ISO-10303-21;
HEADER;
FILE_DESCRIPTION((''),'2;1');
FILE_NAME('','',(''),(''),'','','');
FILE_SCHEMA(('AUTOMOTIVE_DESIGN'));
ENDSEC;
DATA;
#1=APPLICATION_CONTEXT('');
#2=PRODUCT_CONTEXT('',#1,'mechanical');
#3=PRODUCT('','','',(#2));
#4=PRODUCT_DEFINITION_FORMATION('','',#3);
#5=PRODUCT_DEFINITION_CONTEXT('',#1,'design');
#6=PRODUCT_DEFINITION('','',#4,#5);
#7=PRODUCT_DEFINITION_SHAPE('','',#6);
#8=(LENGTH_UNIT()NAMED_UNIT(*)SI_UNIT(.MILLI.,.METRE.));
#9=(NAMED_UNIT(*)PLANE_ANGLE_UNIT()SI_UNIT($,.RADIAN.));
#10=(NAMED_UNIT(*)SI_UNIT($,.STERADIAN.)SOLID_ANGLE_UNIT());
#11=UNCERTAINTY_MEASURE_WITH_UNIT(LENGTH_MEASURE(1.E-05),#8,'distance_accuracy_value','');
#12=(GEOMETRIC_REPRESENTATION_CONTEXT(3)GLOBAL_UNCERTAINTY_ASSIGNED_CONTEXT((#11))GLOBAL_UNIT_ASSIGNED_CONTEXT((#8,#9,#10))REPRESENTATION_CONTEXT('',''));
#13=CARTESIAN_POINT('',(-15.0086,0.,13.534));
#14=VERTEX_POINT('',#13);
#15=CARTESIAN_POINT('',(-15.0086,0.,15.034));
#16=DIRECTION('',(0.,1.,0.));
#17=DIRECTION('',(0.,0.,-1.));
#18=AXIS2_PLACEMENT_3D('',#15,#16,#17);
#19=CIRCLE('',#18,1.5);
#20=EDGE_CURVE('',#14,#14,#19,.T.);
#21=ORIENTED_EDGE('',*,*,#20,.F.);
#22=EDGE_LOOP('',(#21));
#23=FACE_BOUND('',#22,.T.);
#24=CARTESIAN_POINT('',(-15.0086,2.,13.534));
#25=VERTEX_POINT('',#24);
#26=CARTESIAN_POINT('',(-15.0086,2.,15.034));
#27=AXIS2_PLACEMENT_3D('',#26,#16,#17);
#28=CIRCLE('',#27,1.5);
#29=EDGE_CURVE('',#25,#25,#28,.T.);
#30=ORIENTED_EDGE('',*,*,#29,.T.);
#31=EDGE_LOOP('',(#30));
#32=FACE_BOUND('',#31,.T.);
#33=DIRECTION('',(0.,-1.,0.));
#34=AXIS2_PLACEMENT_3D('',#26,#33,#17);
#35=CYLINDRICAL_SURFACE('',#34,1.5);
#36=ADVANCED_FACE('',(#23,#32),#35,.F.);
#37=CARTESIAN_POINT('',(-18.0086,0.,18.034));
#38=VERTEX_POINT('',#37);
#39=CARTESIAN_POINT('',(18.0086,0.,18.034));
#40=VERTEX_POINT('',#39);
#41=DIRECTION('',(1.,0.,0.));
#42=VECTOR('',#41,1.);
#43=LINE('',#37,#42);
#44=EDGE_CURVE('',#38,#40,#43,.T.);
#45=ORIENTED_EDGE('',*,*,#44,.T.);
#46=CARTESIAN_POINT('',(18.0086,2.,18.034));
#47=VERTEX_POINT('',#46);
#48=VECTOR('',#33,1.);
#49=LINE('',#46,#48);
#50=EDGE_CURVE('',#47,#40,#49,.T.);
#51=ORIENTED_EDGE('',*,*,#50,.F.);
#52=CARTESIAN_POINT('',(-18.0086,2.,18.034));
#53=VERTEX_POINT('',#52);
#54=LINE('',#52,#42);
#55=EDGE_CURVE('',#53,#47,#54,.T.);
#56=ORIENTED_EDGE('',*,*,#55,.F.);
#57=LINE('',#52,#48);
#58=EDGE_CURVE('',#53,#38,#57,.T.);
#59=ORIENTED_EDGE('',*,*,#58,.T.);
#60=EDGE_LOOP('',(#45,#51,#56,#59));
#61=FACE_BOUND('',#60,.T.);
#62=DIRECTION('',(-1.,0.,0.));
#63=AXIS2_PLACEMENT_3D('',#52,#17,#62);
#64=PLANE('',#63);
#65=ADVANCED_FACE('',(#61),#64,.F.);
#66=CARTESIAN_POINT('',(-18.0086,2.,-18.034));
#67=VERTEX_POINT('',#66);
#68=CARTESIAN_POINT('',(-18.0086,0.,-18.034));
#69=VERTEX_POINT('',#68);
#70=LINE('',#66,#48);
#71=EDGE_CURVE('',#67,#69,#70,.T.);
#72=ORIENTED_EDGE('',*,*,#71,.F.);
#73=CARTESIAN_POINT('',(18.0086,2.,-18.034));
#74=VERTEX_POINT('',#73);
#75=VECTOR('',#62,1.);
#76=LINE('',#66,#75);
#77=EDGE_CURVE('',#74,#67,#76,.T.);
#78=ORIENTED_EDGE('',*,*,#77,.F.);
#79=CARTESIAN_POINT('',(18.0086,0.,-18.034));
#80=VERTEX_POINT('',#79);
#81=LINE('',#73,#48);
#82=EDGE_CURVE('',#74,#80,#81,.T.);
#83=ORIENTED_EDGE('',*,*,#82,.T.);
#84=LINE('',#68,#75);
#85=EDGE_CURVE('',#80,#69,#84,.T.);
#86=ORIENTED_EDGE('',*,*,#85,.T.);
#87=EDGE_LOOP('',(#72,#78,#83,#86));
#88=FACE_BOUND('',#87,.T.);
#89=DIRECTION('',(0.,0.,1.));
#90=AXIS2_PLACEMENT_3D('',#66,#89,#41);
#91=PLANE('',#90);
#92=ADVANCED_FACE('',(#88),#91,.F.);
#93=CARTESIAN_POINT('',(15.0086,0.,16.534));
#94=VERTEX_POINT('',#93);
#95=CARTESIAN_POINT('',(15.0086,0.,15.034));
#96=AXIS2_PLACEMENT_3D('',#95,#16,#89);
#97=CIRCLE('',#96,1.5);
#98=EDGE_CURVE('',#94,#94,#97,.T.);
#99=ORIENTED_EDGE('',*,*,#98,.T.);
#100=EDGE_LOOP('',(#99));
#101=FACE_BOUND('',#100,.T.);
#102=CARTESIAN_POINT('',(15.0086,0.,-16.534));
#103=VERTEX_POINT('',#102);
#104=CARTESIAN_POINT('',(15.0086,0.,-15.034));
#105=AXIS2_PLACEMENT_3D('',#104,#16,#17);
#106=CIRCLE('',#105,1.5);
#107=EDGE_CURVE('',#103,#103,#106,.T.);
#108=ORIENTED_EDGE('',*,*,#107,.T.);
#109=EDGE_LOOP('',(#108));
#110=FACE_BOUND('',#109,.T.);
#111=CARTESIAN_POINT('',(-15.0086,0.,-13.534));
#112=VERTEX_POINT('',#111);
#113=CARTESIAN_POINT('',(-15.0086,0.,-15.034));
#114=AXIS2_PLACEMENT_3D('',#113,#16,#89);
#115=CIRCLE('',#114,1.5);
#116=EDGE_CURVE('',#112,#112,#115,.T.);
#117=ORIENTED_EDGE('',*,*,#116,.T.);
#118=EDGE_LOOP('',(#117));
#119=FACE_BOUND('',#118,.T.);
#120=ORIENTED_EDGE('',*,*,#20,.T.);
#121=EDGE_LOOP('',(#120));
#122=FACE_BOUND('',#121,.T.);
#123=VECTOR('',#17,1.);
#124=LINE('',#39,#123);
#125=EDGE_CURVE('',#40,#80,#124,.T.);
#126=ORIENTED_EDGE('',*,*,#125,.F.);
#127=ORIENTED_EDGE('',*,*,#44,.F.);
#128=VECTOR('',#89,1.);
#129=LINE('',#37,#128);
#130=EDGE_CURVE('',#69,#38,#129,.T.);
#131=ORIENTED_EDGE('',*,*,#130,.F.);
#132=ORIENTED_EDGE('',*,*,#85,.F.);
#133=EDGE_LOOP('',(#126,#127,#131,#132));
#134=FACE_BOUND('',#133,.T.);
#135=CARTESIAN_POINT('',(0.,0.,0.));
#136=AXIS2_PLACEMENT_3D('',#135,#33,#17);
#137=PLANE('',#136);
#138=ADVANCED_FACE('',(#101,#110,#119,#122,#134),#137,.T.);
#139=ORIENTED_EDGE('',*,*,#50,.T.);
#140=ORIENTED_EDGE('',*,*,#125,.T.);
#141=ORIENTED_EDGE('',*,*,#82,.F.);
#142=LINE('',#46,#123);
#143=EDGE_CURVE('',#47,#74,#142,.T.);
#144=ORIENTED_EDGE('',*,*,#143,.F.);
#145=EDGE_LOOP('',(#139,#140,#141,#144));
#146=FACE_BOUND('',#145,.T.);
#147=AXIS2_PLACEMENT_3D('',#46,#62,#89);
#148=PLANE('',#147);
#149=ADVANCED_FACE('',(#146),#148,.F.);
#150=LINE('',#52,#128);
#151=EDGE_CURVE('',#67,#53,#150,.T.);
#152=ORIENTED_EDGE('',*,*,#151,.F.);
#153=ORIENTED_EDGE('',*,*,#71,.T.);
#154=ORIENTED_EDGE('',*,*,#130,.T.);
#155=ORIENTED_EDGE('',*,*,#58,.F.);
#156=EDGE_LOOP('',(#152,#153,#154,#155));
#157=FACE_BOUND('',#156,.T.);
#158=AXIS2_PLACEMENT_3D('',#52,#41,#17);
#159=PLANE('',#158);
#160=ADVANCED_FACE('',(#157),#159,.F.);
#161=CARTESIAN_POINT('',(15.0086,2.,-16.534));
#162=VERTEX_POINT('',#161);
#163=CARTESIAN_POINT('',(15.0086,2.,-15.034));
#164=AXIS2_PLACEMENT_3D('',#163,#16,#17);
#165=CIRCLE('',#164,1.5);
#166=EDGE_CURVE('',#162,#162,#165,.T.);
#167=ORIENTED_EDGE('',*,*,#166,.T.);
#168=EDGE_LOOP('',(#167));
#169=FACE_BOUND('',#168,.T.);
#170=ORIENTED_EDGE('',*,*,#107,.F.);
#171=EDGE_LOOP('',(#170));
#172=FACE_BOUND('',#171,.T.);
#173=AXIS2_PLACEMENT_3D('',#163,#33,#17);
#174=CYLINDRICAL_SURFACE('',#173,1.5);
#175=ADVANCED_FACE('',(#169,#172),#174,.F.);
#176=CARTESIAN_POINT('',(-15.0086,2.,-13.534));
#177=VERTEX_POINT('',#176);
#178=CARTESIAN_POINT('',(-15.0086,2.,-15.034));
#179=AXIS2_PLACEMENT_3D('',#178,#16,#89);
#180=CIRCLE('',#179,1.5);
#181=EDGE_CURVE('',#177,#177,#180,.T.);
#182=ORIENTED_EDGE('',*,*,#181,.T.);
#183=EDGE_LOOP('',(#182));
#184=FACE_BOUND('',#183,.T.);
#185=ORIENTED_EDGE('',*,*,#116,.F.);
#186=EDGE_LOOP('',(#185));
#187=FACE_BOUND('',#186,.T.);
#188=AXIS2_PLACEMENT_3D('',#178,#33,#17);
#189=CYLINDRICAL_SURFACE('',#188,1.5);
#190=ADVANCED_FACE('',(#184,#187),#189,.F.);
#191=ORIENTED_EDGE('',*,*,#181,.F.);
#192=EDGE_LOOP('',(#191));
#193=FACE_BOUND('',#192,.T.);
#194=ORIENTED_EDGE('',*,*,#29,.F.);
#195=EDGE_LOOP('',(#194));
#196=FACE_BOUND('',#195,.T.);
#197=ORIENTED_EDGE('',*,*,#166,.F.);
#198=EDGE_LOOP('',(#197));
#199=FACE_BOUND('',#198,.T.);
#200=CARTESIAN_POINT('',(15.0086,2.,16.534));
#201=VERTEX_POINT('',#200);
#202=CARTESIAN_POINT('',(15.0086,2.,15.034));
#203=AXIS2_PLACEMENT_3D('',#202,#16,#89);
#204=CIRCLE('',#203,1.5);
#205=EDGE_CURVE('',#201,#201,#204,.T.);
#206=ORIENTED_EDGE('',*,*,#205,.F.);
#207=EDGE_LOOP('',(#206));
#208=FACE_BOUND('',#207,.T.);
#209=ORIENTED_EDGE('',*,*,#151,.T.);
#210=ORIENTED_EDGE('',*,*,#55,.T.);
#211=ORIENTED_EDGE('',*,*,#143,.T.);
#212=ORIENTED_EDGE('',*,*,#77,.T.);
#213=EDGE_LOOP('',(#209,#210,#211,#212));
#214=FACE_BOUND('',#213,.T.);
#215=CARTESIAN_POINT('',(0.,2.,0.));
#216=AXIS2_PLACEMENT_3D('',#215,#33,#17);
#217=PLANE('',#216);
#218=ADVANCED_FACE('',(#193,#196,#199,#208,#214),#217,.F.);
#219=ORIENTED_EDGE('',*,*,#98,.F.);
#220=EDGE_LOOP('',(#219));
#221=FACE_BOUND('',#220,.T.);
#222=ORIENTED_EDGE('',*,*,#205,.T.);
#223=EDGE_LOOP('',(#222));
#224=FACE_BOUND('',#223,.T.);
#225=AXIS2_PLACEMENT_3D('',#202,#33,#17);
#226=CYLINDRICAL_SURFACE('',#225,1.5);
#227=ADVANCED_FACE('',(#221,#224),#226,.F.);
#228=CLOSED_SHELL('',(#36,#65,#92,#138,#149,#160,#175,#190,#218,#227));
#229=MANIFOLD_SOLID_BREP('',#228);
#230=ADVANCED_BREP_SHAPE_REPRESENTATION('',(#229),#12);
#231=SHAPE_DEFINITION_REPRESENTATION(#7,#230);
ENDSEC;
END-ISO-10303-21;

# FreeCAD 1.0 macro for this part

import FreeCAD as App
import Part
import Sketcher
from FreeCAD import Vector

doc = App.newDocument("Part")
params = doc.addObject("Spreadsheet::Sheet", "Params")
for row, (alias, value) in enumerate([
    ("sketch1_diameter", "3 mm"),
    ("pad1_length", "2 mm"),
], start=1):
    params.set(f"A{row}", alias)
    params.set(f"B{row}", "=" + value)
    params.setAlias(f"B{row}", alias)

body = doc.addObject("PartDesign::Body", "Body")

# Sketch on XZ plane
sketch1 = body.newObject("Sketcher::SketchObject", "Sketch")
sketch1.AttachmentSupport = (doc.getObject("XZ_Plane"), [""])
sketch1.MapMode = "FlatFace"
sketch1.addGeometry([
    Part.LineSegment(Vector(-18.0086, -18.034, 0), Vector(-18.0086, 18.034, 0)),  # 0
    Part.LineSegment(Vector(-18.0086, 18.034, 0), Vector(18.0086, 18.034, 0)),  # 1
    Part.LineSegment(Vector(18.0086, 18.034, 0), Vector(18.0086, -18.034, 0)),  # 2
    Part.LineSegment(Vector(18.0086, -18.034, 0), Vector(-18.0086, -18.034, 0)),  # 3
    Part.Circle(Vector(-15.0086, 15.034, 0), Vector(0, 0, 1), 1.5),  # 4
    Part.Circle(Vector(15.0086, 15.034, 0), Vector(0, 0, 1), 1.5),  # 5
    Part.Circle(Vector(-15.0086, -15.034, 0), Vector(0, 0, 1), 1.5),  # 6
    Part.Circle(Vector(15.0086, -15.034, 0), Vector(0, 0, 1), 1.5),  # 7
], False)
sketch1.addConstraint([
    Sketcher.Constraint("Coincident", 0, 2, 1, 1),
    Sketcher.Constraint("Coincident", 1, 2, 2, 1),
    Sketcher.Constraint("Coincident", 2, 2, 3, 1),
    Sketcher.Constraint("Coincident", 3, 2, 0, 1),
    Sketcher.Constraint("Vertical", 0),
    Sketcher.Constraint("Horizontal", 1),
    Sketcher.Constraint("Vertical", 2),
    Sketcher.Constraint("Horizontal", 3),
    Sketcher.Constraint("Equal", 4, 5),
    Sketcher.Constraint("Equal", 5, 6),
    Sketcher.Constraint("Equal", 6, 7),
    Sketcher.Constraint("Symmetric", 5, 3, 6, 3, -1, 1),
    Sketcher.Constraint("Symmetric", 4, 3, 7, 3, -1, 1),
    Sketcher.Constraint("Symmetric", 0, 2, 2, 2, -1, 1),
    Sketcher.Constraint("Symmetric", 4, 3, 5, 3, -2),
    Sketcher.Constraint("Diameter", 4, 3.0),
    Sketcher.Constraint("DistanceX", 0, 2, 4, 3, 3.0),
    Sketcher.Constraint("DistanceY", 4, 3, 0, 2, 3.0),
    Sketcher.Constraint("DistanceY", 0, 1, 0, 2, 36.068),
    Sketcher.Constraint("DistanceX", 1, 1, 1, 2, 36.0172),
])
sketch1.setExpression("Constraints[15]", "Params.sketch1_diameter")
pad1 = body.newObject("PartDesign::Pad", "Pad")
pad1.Profile = sketch1
pad1.setExpression("Length", "Params.pad1_length")
pad1.Reversed = True

doc.recompute()
